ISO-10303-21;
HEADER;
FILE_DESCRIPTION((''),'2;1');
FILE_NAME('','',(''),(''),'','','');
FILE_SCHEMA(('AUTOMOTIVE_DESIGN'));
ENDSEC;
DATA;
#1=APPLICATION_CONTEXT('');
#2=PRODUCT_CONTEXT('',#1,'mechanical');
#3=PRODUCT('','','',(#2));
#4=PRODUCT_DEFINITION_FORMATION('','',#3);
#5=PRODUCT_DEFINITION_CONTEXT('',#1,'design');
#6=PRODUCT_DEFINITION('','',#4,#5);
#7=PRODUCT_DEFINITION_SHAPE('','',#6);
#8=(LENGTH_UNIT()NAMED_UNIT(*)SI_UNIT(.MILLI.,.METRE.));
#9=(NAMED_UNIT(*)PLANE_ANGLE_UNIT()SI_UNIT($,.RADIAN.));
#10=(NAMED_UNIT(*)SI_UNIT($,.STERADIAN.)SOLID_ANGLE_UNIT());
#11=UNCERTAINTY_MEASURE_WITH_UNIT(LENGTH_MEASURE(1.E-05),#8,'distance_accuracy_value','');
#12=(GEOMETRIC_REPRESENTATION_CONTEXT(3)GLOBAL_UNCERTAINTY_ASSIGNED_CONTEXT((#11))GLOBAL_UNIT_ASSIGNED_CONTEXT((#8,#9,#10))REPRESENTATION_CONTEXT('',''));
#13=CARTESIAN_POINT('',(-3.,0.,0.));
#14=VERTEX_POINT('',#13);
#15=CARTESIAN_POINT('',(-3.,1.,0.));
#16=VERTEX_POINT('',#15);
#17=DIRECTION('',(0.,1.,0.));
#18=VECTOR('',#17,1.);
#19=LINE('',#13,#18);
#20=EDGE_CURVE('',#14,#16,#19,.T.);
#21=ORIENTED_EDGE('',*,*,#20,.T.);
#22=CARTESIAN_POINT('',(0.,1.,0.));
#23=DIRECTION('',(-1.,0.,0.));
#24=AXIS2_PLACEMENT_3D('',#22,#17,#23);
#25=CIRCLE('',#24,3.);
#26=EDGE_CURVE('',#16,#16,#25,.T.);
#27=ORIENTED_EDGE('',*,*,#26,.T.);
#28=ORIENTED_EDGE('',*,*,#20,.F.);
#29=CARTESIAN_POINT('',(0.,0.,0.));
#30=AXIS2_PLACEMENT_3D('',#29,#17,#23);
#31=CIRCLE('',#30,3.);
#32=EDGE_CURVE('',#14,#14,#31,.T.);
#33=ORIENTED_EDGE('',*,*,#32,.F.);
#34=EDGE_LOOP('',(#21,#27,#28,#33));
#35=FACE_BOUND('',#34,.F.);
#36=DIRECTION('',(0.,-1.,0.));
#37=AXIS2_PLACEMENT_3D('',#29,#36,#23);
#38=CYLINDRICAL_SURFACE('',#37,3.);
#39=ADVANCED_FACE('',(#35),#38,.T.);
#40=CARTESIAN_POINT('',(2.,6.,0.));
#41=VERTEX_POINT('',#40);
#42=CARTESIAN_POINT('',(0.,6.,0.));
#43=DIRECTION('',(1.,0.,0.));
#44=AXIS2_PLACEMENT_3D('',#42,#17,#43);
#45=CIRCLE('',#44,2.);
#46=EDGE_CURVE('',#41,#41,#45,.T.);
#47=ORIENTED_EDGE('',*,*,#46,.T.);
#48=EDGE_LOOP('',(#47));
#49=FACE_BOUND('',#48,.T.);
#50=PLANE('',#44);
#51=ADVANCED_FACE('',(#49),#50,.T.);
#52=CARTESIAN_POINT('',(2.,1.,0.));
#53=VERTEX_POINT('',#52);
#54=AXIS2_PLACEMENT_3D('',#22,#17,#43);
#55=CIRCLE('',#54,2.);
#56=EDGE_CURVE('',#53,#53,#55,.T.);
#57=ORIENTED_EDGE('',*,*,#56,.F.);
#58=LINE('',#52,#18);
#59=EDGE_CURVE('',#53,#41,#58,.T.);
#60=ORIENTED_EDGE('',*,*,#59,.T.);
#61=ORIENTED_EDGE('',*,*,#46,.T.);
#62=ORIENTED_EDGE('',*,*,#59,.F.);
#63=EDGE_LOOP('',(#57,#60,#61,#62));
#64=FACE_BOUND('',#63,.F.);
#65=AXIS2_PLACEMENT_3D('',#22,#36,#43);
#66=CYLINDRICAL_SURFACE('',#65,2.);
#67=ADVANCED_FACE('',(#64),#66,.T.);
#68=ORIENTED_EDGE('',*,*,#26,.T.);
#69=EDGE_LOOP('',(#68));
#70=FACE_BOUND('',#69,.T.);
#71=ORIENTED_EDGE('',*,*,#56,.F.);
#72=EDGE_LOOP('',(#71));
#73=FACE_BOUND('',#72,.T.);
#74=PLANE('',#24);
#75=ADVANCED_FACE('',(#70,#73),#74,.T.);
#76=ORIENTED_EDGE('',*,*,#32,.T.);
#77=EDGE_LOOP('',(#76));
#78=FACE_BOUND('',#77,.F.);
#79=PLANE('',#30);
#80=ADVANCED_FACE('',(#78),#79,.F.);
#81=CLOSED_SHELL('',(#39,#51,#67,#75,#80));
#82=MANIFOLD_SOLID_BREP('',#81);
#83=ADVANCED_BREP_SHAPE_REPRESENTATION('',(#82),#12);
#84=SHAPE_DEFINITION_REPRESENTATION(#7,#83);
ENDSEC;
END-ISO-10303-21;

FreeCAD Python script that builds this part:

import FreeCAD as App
import Part
import Sketcher

V = App.Vector
Q = App.Units.Quantity

doc = App.newDocument("Part")
params = doc.addObject("Spreadsheet::Sheet", "Params")
for row, (alias, value) in enumerate([
    ("sketch1_diameter", "6 mm"),
    ("pad1_length", "1 mm"),
    ("sketch2_diameter", "4 mm"),
    ("pad2_length", "5 mm"),
], start=1):
    params.set(f"A{row}", alias)
    params.set(f"B{row}", "=" + value)
    params.setAlias(f"B{row}", alias)

body = doc.addObject("PartDesign::Body", "Body")

# Sketch on XZ plane
sketch1 = body.newObject("Sketcher::SketchObject", "Sketch")
sketch1.AttachmentSupport = (doc.getObject("XZ_Plane"), [""])
sketch1.MapMode = "FlatFace"
sketch1.addGeometry(Part.Circle(V(0, 0, 0), V(0, 0, 1), 3), False)
sketch1.addConstraint([
    Sketcher.Constraint("Coincident", 0, 3, -1, 1),
    Sketcher.Constraint("Diameter", 0, Q("6 mm")),
])
sketch1.setExpression("Constraints[1]", "Params.sketch1_diameter")
pad1 = body.newObject("PartDesign::Pad", "Pad")
pad1.Profile = sketch1
pad1.setExpression("Length", "Params.pad1_length")
pad1.Reversed = True

# Sketch on XZ plane
sketch2 = body.newObject("Sketcher::SketchObject", "Sketch001")
sketch2.AttachmentSupport = (doc.getObject("XZ_Plane"), [""])
sketch2.MapMode = "FlatFace"
sketch2.AttachmentOffset = App.Placement(V(0, 0, -1), App.Rotation())
sketch2.addGeometry(Part.Circle(V(0, 0, 0), V(0, 0, 1), 2), False)
sketch2.addConstraint([
    Sketcher.Constraint("Coincident", 0, 3, -1, 1),
    Sketcher.Constraint("Diameter", 0, Q("4 mm")),
])
sketch2.setExpression("Constraints[1]", "Params.sketch2_diameter")
pad2 = body.newObject("PartDesign::Pad", "Pad001")
pad2.Profile = sketch2
pad2.setExpression("Length", "Params.pad2_length")
pad2.Reversed = True

doc.recompute()
